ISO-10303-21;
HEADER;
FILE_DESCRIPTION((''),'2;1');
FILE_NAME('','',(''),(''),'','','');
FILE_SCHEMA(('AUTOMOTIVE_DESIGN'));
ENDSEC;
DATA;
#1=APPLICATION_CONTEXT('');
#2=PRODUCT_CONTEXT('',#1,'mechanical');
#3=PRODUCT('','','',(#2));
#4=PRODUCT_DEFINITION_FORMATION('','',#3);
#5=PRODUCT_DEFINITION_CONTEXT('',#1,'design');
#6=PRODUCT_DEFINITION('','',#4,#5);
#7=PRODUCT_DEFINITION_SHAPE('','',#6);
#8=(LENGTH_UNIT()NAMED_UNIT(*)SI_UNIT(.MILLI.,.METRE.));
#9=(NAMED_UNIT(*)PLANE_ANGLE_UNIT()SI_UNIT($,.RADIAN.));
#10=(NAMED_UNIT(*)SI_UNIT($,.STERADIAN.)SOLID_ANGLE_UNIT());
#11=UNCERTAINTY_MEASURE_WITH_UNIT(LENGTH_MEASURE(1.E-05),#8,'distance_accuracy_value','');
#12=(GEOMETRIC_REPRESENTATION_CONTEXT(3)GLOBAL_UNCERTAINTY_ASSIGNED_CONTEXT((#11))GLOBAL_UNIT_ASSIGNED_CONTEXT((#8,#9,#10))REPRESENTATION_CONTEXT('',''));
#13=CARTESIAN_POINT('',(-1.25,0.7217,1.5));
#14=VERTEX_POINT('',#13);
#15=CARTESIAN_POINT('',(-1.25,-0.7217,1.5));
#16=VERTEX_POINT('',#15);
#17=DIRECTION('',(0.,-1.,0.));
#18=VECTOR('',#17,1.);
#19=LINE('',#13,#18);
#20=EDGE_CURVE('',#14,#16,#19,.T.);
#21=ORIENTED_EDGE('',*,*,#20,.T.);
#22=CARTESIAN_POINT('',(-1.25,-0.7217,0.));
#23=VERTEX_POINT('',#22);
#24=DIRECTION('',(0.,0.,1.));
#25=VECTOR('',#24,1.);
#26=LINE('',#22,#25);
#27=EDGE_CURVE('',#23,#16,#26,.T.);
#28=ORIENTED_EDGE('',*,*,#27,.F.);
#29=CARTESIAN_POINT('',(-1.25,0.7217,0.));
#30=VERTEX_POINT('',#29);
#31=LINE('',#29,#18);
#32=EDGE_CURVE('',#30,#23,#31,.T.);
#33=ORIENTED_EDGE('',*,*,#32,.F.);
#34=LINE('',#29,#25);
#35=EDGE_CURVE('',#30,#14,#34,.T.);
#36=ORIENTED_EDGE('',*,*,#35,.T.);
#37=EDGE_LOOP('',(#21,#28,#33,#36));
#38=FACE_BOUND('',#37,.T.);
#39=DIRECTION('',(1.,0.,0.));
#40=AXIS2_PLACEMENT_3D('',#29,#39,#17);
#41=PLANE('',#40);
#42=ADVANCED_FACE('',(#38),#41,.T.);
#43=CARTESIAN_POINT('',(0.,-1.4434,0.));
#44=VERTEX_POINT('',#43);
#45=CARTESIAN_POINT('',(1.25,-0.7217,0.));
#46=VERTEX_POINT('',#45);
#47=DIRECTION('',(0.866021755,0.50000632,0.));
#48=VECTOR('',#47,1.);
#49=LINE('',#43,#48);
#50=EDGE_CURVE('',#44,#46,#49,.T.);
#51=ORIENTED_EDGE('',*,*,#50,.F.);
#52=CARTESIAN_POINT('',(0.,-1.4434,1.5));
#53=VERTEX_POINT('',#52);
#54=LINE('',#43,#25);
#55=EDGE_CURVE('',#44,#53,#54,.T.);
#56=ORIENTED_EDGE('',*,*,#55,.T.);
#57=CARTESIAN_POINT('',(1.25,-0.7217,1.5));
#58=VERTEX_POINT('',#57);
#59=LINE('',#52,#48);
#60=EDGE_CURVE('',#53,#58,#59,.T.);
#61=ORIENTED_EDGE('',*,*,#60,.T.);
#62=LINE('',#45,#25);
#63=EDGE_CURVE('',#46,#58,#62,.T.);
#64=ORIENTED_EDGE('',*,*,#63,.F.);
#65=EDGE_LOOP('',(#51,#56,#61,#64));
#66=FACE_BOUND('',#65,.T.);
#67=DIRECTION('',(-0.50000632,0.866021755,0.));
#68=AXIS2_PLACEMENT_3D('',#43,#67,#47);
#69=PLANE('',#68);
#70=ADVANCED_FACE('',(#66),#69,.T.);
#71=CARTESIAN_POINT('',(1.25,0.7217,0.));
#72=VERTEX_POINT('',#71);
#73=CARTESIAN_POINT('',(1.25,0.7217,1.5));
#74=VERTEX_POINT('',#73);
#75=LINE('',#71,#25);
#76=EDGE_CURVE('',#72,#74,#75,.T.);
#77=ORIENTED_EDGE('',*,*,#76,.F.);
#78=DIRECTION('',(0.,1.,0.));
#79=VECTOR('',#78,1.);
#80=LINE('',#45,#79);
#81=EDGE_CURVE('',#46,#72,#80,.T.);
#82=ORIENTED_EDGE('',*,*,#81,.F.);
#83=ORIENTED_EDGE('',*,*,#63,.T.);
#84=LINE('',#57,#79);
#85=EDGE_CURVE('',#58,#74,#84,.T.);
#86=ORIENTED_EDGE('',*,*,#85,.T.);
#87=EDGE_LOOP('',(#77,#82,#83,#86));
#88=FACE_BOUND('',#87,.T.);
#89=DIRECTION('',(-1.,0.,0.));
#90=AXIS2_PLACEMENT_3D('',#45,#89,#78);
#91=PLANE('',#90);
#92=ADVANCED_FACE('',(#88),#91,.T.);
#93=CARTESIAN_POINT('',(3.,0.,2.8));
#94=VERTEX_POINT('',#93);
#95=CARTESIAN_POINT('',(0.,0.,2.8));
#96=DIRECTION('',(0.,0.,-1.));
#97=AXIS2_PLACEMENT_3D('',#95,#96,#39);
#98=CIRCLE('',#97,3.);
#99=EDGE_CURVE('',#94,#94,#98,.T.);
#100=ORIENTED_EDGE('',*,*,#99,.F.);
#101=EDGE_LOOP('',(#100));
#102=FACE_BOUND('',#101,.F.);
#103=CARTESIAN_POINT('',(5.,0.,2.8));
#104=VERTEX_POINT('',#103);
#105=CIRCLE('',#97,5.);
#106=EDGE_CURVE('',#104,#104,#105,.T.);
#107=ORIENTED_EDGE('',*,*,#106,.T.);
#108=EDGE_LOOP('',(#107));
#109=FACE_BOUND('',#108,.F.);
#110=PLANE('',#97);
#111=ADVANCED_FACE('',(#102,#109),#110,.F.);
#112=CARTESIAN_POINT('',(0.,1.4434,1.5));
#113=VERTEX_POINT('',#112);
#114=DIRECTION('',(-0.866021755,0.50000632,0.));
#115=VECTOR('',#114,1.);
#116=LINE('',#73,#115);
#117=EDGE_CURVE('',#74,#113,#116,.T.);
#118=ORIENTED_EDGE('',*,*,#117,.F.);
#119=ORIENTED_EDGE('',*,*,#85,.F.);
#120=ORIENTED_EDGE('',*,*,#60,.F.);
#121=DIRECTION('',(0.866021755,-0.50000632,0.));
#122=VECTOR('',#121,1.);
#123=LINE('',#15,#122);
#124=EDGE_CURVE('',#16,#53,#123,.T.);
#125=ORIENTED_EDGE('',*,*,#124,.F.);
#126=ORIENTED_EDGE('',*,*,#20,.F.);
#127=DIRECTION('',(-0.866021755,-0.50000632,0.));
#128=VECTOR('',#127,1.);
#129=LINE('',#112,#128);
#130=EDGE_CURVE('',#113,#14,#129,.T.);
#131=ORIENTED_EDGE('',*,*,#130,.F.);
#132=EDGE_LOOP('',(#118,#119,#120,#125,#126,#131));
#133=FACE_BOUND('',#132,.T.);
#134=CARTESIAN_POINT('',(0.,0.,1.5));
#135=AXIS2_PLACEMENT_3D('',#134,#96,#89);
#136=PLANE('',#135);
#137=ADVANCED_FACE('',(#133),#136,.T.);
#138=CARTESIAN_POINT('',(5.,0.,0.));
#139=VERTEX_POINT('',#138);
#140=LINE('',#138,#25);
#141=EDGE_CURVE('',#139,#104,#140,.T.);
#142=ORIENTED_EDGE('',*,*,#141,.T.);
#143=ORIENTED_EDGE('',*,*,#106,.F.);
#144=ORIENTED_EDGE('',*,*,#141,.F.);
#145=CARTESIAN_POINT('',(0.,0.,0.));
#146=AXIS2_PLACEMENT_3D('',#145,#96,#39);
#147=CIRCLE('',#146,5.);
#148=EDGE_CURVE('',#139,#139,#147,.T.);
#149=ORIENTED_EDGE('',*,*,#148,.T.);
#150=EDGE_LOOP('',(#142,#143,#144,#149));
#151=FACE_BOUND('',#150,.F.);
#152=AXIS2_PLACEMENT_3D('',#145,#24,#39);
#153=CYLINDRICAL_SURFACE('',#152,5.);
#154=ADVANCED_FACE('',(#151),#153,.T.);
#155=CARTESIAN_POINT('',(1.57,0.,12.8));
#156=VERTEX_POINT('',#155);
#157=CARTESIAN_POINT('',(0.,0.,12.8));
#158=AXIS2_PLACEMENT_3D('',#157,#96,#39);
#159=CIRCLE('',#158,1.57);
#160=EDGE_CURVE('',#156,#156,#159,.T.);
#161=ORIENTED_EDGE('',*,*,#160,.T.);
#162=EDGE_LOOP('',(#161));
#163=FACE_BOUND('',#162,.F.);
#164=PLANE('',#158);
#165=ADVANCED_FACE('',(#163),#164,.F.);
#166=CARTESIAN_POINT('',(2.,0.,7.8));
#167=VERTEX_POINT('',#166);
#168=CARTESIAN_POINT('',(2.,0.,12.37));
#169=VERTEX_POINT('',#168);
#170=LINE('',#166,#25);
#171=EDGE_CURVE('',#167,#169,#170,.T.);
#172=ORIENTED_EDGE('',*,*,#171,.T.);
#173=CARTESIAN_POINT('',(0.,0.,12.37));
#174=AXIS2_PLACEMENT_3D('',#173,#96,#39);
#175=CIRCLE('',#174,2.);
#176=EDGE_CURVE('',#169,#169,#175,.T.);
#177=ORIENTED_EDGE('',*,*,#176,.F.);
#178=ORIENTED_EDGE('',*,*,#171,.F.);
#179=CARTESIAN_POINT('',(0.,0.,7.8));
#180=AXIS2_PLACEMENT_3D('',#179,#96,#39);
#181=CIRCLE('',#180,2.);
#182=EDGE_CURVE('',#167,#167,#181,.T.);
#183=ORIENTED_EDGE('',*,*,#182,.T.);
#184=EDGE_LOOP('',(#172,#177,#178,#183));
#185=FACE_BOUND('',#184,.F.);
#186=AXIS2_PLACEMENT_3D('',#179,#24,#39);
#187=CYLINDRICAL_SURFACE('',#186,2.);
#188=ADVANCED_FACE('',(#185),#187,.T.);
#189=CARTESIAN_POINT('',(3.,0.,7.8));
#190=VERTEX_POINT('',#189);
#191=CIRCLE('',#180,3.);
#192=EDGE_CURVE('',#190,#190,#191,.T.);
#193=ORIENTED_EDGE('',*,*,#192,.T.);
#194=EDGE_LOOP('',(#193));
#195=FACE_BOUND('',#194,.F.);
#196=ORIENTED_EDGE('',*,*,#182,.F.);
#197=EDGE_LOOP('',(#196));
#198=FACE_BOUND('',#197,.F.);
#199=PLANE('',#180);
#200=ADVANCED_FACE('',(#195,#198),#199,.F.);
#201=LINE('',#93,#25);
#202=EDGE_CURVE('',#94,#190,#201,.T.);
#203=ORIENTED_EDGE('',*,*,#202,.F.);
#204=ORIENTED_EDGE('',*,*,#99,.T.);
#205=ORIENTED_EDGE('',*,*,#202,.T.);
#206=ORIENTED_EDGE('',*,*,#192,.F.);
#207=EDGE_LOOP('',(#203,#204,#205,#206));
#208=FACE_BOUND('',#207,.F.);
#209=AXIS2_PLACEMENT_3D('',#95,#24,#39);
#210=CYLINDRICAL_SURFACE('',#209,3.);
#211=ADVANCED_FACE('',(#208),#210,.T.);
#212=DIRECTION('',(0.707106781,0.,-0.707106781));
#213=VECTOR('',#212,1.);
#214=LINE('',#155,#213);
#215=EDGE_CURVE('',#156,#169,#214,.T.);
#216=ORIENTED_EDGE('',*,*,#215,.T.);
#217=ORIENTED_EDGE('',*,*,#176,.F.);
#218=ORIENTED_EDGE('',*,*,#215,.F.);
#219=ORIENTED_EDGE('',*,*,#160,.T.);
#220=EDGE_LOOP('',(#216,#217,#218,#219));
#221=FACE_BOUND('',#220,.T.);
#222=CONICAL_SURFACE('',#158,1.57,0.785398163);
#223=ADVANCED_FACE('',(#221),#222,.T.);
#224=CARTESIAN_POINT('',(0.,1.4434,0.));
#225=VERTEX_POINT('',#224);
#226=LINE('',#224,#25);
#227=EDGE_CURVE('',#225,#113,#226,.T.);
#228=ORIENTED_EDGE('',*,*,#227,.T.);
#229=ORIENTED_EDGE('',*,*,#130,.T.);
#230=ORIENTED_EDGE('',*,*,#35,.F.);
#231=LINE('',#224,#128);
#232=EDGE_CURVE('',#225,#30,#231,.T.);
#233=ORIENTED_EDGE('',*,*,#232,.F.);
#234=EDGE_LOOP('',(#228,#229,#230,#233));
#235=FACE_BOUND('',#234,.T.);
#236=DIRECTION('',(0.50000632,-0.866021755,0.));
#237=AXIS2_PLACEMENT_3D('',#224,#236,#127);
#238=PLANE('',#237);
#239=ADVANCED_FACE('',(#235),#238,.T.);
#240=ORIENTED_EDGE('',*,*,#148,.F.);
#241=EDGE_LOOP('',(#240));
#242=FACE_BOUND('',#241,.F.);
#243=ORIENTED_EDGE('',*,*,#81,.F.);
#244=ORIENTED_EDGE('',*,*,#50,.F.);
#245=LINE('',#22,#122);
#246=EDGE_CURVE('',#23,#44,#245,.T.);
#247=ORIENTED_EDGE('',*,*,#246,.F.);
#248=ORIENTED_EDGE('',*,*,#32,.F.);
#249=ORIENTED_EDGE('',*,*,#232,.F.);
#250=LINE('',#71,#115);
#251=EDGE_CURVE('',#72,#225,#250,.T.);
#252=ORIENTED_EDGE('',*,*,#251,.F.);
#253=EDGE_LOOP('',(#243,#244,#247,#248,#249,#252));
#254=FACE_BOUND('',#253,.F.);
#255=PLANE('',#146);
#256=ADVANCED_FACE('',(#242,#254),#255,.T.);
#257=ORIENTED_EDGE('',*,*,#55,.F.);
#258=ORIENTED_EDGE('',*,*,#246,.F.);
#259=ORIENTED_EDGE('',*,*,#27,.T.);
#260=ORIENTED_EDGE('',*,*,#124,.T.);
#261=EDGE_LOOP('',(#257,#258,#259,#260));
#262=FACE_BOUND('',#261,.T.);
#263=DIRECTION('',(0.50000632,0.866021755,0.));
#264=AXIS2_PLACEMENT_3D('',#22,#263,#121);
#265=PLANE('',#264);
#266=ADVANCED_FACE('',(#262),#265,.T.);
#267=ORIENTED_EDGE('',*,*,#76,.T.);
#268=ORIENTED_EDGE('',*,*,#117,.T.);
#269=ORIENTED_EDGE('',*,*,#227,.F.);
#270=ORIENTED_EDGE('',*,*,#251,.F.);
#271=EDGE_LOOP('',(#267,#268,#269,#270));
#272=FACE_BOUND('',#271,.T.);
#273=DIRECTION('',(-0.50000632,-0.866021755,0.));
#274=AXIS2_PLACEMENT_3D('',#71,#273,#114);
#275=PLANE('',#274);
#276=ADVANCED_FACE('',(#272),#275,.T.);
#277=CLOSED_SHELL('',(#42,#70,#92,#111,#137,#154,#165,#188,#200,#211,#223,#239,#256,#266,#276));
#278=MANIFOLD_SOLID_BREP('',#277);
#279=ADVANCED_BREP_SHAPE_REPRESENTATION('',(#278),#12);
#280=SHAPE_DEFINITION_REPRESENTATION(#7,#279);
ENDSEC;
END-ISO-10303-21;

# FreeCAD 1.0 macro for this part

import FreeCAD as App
import Part
import Sketcher

V = App.Vector
Q = App.Units.Quantity


def add_polygon(sketch, points):
    """Adds a closed chain of lines whose ends are joined by coincident constraints."""
    first, n = sketch.GeometryCount, len(points)
    for a, b in zip(points, points[1:] + points[:1]):
        sketch.addGeometry(Part.LineSegment(App.Vector(*a, 0), App.Vector(*b, 0)), False)
    for i in range(n):
        sketch.addConstraint(Sketcher.Constraint("Coincident", first + i, 2, first + (i + 1) % n, 1))

doc = App.newDocument("Part")
body = doc.addObject("PartDesign::Body", "Body")

# Sketch on XZ plane
sketch1 = doc.addObject("Sketcher::SketchObject", "Sketch")
body.addObject(sketch1)
sketch1.AttachmentSupport = (doc.XZ_Plane, [""])
sketch1.MapMode = "FlatFace"
add_polygon(sketch1, [(5, 0), (0, 0), (0, 12.8), (1.6, 12.8), (2, 12.4), (2, 7.8), (3, 7.8), (3, 2.8), (5, 2.8)])  # lines 0-8
sketch1.addConstraint([
    Sketcher.Constraint("Horizontal", 0),
    Sketcher.Constraint("Vertical", 1),
    Sketcher.Constraint("Horizontal", 2),
    Sketcher.Constraint("Vertical", 4),
    Sketcher.Constraint("Horizontal", 5),
    Sketcher.Constraint("Vertical", 6),
    Sketcher.Constraint("Horizontal", 7),
    Sketcher.Constraint("Vertical", 8),
    Sketcher.Constraint("Coincident", 0, 2, -1, 1),
    Sketcher.Constraint("Equal", 0, 6),
    Sketcher.Constraint("DistanceX", 0, 2, 0, 1, 5.0),
    Sketcher.Constraint("DistanceY", 8, 2, 8, 1, 2.8),
    Sketcher.Constraint("DistanceY", 4, 2, 2, 2, 5.0),
    Sketcher.Constraint("DistanceX", 5, 1, 5, 2, 1.0),
    Sketcher.Constraint("DistanceX", 7, 1, 7, 2, 2.0),
    Sketcher.Constraint("Angle", 3, Q("-45 deg")),
    Sketcher.Constraint("DistanceX", 2, 2, 3, 2, 0.43),
])
revolution = doc.addObject("PartDesign::Revolution", "Revolution")
body.addObject(revolution)
revolution.Profile = sketch1
revolution.ReferenceAxis = (sketch1, ["V_Axis"])
revolution.Angle = 360

# Sketch on XY plane
sketch2 = doc.addObject("Sketcher::SketchObject", "Sketch001")
body.addObject(sketch2)
sketch2.AttachmentSupport = (doc.XY_Plane, [""])
sketch2.MapMode = "FlatFace"
add_polygon(sketch2, [(1.2, -0.7), (0, -1.4), (-1.2, -0.7), (-1.2, 0.7), (0, 1.4), (1.2, 0.7)])  # lines 0-5
sketch2.addConstraint([
    Sketcher.Constraint("Vertical", 2),
    Sketcher.Constraint("Vertical", 5),
    Sketcher.Constraint("Symmetric", 0, 2, 3, 2, -1, 1),
    Sketcher.Constraint("Symmetric", 1, 2, 4, 2, -1, 1),
    Sketcher.Constraint("PointOnObject", 0, 2, -2),
    Sketcher.Constraint("Parallel", 0, 3),
    Sketcher.Constraint("Horizontal", 2, 2, 4, 2),
    Sketcher.Constraint("DistanceX", 2, 2, 4, 2, 2.5),
    Sketcher.Constraint("Angle", 0, Q("-149.9996 deg")),
    Sketcher.Constraint("DistanceY", 2, 1, 2, 2, 1.4434),
])
pocket1 = doc.addObject("PartDesign::Pocket", "Pocket")
body.addObject(pocket1)
pocket1.Profile = sketch2
pocket1.Length = 1.5
pocket1.Reversed = True

doc.recompute()
